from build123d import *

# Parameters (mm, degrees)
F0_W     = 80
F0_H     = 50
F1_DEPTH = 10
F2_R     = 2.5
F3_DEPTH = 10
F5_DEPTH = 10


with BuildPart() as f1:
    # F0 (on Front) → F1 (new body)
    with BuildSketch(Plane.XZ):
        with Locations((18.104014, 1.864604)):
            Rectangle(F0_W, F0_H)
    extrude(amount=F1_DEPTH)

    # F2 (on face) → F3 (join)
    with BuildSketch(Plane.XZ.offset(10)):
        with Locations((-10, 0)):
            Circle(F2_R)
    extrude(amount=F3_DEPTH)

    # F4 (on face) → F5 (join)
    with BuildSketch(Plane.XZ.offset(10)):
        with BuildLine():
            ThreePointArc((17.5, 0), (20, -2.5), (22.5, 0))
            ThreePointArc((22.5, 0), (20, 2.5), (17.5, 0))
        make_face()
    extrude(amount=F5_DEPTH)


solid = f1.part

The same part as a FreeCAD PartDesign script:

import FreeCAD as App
import Part
import Sketcher

V = App.Vector

doc = App.newDocument("Part")
body = doc.addObject("PartDesign::Body", "Body")

sketch1 = body.newObject("Sketcher::SketchObject", "Sketch")
sketch1.AttachmentSupport = (doc.getObject("XZ_Plane"), [""])
sketch1.MapMode = "FlatFace"
sketch1.addGeometry([
    Part.LineSegment(V(-22, 27, 0), V(-22, -23, 0)),
    Part.LineSegment(V(-22, -23, 0), V(58, -23, 0)),
    Part.LineSegment(V(58, -23, 0), V(58, 27, 0)),
    Part.LineSegment(V(58, 27, 0), V(-22, 27, 0)),
], False)
sketch1.addConstraint([
    Sketcher.Constraint("Coincident", 0, 2, 1, 1),
    Sketcher.Constraint("Coincident", 1, 2, 2, 1),
    Sketcher.Constraint("Coincident", 2, 2, 3, 1),
    Sketcher.Constraint("Coincident", 3, 2, 0, 1),
    Sketcher.Constraint("Vertical", 0),
    Sketcher.Constraint("Horizontal", 1),
    Sketcher.Constraint("Vertical", 2),
    Sketcher.Constraint("Horizontal", 3),
    Sketcher.Constraint("DistanceX", 1, 1, 1, 2, 80.0),
    Sketcher.Constraint("DistanceY", 0, 2, 0, 1, 50.0),
    Sketcher.Constraint("DistanceX", 0, 2, -1, 1, 21.895986),
    Sketcher.Constraint("DistanceY", 0, 2, -1, 1, 23.135396),
])
pad1 = body.newObject("PartDesign::Pad", "Pad")
pad1.Profile = sketch1
pad1.Length = 10

sketch2 = body.newObject("Sketcher::SketchObject", "Sketch001")
sketch2.AttachmentSupport = (doc.getObject("XZ_Plane"), [""])
sketch2.MapMode = "FlatFace"
sketch2.AttachmentOffset = App.Placement(V(0, 0, 10), App.Rotation())
sketch2.addGeometry(Part.Circle(V(-10, 0, 0), V(0, 0, 1), 2.5), False)
sketch2.addConstraint([
    Sketcher.Constraint("PointOnObject", 0, 3, -1),
    Sketcher.Constraint("Diameter", 0, 5.0),
    Sketcher.Constraint("DistanceX", 0, 3, -1, 1, 10.0),
])
pad2 = body.newObject("PartDesign::Pad", "Pad001")
pad2.Profile = sketch2
pad2.Length = 10

sketch3 = body.newObject("Sketcher::SketchObject", "Sketch002")
sketch3.AttachmentSupport = (doc.getObject("XZ_Plane"), [""])
sketch3.MapMode = "FlatFace"
sketch3.AttachmentOffset = App.Placement(V(0, 0, 10), App.Rotation())
sketch3.addGeometry(Part.Circle(V(20, 0, 0), V(0, 0, 1), 2.5), False)
sketch3.addConstraint([
    Sketcher.Constraint("PointOnObject", 0, 3, -1),
    Sketcher.Constraint("Diameter", 0, 5.0),
    Sketcher.Constraint("DistanceX", -1, 1, 0, 3, 20.0),
])
pad3 = body.newObject("PartDesign::Pad", "Pad002")
pad3.Profile = sketch3
pad3.Length = 10

doc.recompute()
